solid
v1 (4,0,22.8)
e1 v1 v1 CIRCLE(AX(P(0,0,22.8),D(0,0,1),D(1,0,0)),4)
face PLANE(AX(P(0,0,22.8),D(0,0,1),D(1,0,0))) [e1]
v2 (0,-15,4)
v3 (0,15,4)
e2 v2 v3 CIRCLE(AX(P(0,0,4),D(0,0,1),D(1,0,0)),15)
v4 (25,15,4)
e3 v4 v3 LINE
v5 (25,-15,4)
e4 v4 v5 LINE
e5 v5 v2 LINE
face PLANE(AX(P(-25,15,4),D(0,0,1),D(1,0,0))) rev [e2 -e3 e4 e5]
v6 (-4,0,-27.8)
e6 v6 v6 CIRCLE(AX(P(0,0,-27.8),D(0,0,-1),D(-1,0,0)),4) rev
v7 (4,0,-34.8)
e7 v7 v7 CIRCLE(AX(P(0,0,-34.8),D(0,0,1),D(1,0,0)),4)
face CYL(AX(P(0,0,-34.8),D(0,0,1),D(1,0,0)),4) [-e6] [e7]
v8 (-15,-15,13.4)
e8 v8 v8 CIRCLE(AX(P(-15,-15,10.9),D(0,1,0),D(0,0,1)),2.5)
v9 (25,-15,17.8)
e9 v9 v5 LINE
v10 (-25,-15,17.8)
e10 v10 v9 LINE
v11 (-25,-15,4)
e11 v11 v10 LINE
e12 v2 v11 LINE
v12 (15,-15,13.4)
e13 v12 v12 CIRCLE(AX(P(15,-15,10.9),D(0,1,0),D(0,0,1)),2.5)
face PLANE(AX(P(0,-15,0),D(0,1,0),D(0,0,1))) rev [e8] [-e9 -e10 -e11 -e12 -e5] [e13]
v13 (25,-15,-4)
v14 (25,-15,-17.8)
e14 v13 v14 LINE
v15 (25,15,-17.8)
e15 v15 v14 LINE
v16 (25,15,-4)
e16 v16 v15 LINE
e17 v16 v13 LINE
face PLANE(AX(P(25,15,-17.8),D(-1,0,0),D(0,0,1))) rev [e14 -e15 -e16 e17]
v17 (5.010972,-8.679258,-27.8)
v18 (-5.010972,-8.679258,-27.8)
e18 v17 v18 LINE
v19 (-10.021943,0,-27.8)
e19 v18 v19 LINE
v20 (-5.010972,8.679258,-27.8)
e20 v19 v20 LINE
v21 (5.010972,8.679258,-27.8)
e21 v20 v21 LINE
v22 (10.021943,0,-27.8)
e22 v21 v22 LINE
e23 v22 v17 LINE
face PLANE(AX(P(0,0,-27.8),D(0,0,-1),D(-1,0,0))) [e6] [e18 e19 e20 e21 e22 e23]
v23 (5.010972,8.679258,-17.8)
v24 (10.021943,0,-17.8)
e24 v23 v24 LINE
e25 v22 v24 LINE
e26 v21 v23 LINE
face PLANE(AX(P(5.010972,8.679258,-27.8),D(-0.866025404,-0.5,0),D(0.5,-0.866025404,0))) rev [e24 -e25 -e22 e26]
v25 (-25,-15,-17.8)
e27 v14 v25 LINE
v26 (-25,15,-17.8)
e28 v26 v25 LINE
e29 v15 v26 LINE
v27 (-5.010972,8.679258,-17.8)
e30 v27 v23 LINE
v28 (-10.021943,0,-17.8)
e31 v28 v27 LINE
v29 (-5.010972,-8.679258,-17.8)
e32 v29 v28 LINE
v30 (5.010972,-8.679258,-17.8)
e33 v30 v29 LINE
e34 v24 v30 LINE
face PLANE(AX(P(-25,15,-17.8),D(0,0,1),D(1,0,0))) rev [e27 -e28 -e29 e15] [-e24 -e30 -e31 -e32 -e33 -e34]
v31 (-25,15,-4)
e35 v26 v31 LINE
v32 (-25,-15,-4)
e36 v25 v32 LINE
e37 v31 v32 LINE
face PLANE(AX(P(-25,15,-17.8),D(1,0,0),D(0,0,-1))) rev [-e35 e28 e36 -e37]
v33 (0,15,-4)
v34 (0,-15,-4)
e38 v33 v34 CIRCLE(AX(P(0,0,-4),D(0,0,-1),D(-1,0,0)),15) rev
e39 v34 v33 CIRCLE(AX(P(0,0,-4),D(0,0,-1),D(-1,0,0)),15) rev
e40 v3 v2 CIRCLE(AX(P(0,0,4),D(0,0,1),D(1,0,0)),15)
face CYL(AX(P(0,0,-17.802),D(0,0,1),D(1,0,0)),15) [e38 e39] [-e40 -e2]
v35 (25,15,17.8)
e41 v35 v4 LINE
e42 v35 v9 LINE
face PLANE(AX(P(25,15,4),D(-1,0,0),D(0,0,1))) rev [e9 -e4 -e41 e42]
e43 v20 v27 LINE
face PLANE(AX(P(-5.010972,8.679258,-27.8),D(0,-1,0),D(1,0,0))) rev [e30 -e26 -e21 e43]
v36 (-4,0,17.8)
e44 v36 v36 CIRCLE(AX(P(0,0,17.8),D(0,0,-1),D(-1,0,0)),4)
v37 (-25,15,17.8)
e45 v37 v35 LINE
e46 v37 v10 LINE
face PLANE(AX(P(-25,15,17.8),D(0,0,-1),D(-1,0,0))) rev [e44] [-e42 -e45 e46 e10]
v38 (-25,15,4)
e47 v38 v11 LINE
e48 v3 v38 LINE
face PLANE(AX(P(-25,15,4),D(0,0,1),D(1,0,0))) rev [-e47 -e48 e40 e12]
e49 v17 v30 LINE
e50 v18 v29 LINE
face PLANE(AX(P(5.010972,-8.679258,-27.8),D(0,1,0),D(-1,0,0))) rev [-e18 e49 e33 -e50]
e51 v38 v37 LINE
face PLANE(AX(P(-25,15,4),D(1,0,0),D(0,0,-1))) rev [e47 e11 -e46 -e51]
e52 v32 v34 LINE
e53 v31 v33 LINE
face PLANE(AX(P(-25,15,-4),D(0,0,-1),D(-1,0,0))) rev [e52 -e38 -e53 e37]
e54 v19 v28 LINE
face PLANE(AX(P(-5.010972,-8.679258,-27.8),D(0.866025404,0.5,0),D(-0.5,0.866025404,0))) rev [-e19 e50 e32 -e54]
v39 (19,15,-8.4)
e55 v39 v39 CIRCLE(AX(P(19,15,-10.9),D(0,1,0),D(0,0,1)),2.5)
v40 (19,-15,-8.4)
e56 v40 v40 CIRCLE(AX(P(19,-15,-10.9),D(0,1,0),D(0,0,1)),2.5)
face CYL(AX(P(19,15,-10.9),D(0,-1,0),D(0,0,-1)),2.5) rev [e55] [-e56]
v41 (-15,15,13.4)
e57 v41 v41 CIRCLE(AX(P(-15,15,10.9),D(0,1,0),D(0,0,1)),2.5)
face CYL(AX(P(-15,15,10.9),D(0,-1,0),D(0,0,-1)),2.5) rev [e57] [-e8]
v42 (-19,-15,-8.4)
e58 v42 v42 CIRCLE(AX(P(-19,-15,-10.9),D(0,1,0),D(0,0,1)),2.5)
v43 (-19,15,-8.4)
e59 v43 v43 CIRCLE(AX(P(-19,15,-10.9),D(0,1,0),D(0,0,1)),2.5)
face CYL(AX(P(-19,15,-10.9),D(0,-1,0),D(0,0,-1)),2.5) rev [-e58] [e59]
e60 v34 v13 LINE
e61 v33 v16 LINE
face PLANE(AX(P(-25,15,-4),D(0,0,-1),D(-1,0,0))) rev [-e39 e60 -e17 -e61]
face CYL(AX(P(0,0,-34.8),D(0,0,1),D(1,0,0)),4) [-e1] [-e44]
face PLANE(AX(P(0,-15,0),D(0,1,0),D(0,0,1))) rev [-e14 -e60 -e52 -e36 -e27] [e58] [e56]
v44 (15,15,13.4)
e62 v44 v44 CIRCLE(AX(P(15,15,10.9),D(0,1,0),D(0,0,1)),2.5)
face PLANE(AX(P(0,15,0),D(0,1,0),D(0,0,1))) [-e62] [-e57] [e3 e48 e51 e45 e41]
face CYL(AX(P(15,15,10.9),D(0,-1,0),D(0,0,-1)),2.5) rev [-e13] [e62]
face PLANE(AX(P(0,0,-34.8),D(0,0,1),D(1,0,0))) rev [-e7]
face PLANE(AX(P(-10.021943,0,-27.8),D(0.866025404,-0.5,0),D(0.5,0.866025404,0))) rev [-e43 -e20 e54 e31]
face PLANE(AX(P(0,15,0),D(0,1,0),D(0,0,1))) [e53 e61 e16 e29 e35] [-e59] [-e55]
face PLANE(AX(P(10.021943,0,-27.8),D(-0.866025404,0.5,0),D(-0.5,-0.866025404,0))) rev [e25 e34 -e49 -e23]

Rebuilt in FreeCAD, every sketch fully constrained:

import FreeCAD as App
import Part
import Sketcher
Q = App.Units.Quantity


def add_polygon(sketch, points):
    """Adds a closed chain of lines whose ends are joined by coincident constraints."""
    first, n = sketch.GeometryCount, len(points)
    for a, b in zip(points, points[1:] + points[:1]):
        sketch.addGeometry(Part.LineSegment(App.Vector(*a, 0), App.Vector(*b, 0)), False)
    for i in range(n):
        sketch.addConstraint(Sketcher.Constraint("Coincident", first + i, 2, first + (i + 1) % n, 1))

doc = App.newDocument("Part")
body = doc.addObject("PartDesign::Body", "Body")

sketch1 = body.newObject("Sketcher::SketchObject", "Sketch")
sketch1.AttachmentSupport = (doc.getObject("XZ_Plane"), [""])
sketch1.MapMode = "FlatFace"
add_polygon(sketch1, [(-25, -17.8), (-25, -4), (25, -4), (25, -17.8)])
sketch1.addGeometry(Part.Circle(App.Vector(-19, -10.9, 0), App.Vector(0, 0, 1), 2.5), False)
sketch1.addGeometry(Part.Circle(App.Vector(19, -10.9, 0), App.Vector(0, 0, 1), 2.5), False)
sketch1.addConstraint([
    Sketcher.Constraint("Vertical", 0),
    Sketcher.Constraint("Horizontal", 1),
    Sketcher.Constraint("Vertical", 2),
    Sketcher.Constraint("Horizontal", 3),
    Sketcher.Constraint("Equal", 4, 5),
    Sketcher.Constraint("Symmetric", 4, 3, 5, 3, -2),
    Sketcher.Constraint("Diameter", 4, Q("5 mm")),
    Sketcher.Constraint("DistanceX", 1, 1, 1, 2, Q("50 mm")),
    Sketcher.Constraint("DistanceY", 0, 1, 0, 2, Q("13.8 mm")),
    Sketcher.Constraint("DistanceX", 4, 3, -1, 1, Q("19 mm")),
    Sketcher.Constraint("DistanceX", 0, 2, -1, 1, Q("25 mm")),
    Sketcher.Constraint("DistanceY", 0, 2, -1, 1, Q("4 mm")),
    Sketcher.Constraint("DistanceY", 4, 3, -1, 1, Q("10.9 mm")),
])
pad1 = body.newObject("PartDesign::Pad", "Pad")
pad1.Profile = sketch1
pad1.Length = 30
pad1.Midplane = True
body2 = doc.addObject("PartDesign::Body", "Body001")

sketch2 = body2.newObject("Sketcher::SketchObject", "Sketch001")
sketch2.AttachmentSupport = (doc.getObject("XZ_Plane001"), [""])
sketch2.MapMode = "FlatFace"
add_polygon(sketch2, [(-25, 4), (-25, 17.8), (25, 17.8), (25, 4)])
sketch2.addGeometry(Part.Circle(App.Vector(-15, 10.9, 0), App.Vector(0, 0, 1), 2.5), False)
sketch2.addGeometry(Part.Circle(App.Vector(15, 10.9, 0), App.Vector(0, 0, 1), 2.5), False)
sketch2.addConstraint([
    Sketcher.Constraint("Vertical", 0),
    Sketcher.Constraint("Horizontal", 1),
    Sketcher.Constraint("Vertical", 2),
    Sketcher.Constraint("Horizontal", 3),
    Sketcher.Constraint("Equal", 4, 5),
    Sketcher.Constraint("Symmetric", 4, 3, 5, 3, -2),
    Sketcher.Constraint("Diameter", 4, Q("5 mm")),
    Sketcher.Constraint("DistanceX", 1, 1, 1, 2, Q("50 mm")),
    Sketcher.Constraint("DistanceY", 0, 1, 0, 2, Q("13.8 mm")),
    Sketcher.Constraint("DistanceX", 4, 3, -1, 1, Q("15 mm")),
    Sketcher.Constraint("DistanceX", 0, 2, -1, 1, Q("25 mm")),
    Sketcher.Constraint("DistanceY", -1, 1, 2, 2, Q("4 mm")),
    Sketcher.Constraint("DistanceY", -1, 1, 4, 3, Q("10.9 mm")),
])
pad2 = body2.newObject("PartDesign::Pad", "Pad001")
pad2.Profile = sketch2
pad2.Length = 30
pad2.Midplane = True
body.AllowCompound = True
doc.recompute()

boolean = body.newObject("PartDesign::Boolean", "Boolean")
boolean.Type = "Fuse"
boolean.addObjects([body2])

sketch3 = body.newObject("Sketcher::SketchObject", "Sketch002")
sketch3.AttachmentSupport = (doc.getObject("XY_Plane"), [""])
sketch3.MapMode = "FlatFace"
sketch3.AttachmentOffset = App.Placement(App.Vector(0, 0, -4), App.Rotation())
sketch3.addGeometry(Part.Circle(App.Vector(0, 0, 0), App.Vector(0, 0, 1), 15), False)
sketch3.addConstraint([
    Sketcher.Constraint("Coincident", 0, 3, -1, 1),
    Sketcher.Constraint("Diameter", 0, Q("30 mm")),
])
pad3 = body.newObject("PartDesign::Pad", "Pad002")
pad3.Profile = sketch3
pad3.Length = 8

sketch4 = body.newObject("Sketcher::SketchObject", "Sketch003")
sketch4.AttachmentSupport = (doc.getObject("XY_Plane"), [""])
sketch4.MapMode = "FlatFace"
sketch4.AttachmentOffset = App.Placement(App.Vector(0, 0, 22.8), App.Rotation())
sketch4.addGeometry(Part.Circle(App.Vector(0, 0, 0), App.Vector(0, 0, 1), 4), False)
sketch4.addConstraint([
    Sketcher.Constraint("Coincident", 0, 3, -1, 1),
    Sketcher.Constraint("Diameter", 0, Q("8 mm")),
])
pad4 = body.newObject("PartDesign::Pad", "Pad003")
pad4.Profile = sketch4
pad4.Length = 57.6
pad4.Reversed = True

sketch5 = body.newObject("Sketcher::SketchObject", "Sketch004")
sketch5.AttachmentSupport = (doc.getObject("XY_Plane"), [""])
sketch5.MapMode = "FlatFace"
sketch5.AttachmentOffset = App.Placement(App.Vector(0, 0, -17.8), App.Rotation())
add_polygon(sketch5, [(10.021943, 0), (5.010972, -8.679258), (-5.010972, -8.679258), (-10.021943, 0), (-5.010972, 8.679258), (5.010972, 8.679258)])
sketch5.addConstraint([
    Sketcher.Constraint("Horizontal", 1),
    Sketcher.Constraint("Horizontal", 4),
    Sketcher.Constraint("Symmetric", 0, 2, 3, 2, -1, 1),
    Sketcher.Constraint("Symmetric", 2, 2, 5, 2, -1, 1),
    Sketcher.Constraint("PointOnObject", 2, 2, -1),
    Sketcher.Constraint("Parallel", 2, 5),
    Sketcher.Constraint("Vertical", 1, 2, 3, 2),
    Sketcher.Constraint("Angle", 0, Q("-120 deg")),
    Sketcher.Constraint("DistanceX", 1, 2, 1, 1, Q("10.021943 mm")),
    Sketcher.Constraint("DistanceX", 2, 2, 1, 2, Q("5.010972 mm")),
])
pad5 = body.newObject("PartDesign::Pad", "Pad004")
pad5.Profile = sketch5
pad5.Length = 10
pad5.Reversed = True

doc.recompute()
